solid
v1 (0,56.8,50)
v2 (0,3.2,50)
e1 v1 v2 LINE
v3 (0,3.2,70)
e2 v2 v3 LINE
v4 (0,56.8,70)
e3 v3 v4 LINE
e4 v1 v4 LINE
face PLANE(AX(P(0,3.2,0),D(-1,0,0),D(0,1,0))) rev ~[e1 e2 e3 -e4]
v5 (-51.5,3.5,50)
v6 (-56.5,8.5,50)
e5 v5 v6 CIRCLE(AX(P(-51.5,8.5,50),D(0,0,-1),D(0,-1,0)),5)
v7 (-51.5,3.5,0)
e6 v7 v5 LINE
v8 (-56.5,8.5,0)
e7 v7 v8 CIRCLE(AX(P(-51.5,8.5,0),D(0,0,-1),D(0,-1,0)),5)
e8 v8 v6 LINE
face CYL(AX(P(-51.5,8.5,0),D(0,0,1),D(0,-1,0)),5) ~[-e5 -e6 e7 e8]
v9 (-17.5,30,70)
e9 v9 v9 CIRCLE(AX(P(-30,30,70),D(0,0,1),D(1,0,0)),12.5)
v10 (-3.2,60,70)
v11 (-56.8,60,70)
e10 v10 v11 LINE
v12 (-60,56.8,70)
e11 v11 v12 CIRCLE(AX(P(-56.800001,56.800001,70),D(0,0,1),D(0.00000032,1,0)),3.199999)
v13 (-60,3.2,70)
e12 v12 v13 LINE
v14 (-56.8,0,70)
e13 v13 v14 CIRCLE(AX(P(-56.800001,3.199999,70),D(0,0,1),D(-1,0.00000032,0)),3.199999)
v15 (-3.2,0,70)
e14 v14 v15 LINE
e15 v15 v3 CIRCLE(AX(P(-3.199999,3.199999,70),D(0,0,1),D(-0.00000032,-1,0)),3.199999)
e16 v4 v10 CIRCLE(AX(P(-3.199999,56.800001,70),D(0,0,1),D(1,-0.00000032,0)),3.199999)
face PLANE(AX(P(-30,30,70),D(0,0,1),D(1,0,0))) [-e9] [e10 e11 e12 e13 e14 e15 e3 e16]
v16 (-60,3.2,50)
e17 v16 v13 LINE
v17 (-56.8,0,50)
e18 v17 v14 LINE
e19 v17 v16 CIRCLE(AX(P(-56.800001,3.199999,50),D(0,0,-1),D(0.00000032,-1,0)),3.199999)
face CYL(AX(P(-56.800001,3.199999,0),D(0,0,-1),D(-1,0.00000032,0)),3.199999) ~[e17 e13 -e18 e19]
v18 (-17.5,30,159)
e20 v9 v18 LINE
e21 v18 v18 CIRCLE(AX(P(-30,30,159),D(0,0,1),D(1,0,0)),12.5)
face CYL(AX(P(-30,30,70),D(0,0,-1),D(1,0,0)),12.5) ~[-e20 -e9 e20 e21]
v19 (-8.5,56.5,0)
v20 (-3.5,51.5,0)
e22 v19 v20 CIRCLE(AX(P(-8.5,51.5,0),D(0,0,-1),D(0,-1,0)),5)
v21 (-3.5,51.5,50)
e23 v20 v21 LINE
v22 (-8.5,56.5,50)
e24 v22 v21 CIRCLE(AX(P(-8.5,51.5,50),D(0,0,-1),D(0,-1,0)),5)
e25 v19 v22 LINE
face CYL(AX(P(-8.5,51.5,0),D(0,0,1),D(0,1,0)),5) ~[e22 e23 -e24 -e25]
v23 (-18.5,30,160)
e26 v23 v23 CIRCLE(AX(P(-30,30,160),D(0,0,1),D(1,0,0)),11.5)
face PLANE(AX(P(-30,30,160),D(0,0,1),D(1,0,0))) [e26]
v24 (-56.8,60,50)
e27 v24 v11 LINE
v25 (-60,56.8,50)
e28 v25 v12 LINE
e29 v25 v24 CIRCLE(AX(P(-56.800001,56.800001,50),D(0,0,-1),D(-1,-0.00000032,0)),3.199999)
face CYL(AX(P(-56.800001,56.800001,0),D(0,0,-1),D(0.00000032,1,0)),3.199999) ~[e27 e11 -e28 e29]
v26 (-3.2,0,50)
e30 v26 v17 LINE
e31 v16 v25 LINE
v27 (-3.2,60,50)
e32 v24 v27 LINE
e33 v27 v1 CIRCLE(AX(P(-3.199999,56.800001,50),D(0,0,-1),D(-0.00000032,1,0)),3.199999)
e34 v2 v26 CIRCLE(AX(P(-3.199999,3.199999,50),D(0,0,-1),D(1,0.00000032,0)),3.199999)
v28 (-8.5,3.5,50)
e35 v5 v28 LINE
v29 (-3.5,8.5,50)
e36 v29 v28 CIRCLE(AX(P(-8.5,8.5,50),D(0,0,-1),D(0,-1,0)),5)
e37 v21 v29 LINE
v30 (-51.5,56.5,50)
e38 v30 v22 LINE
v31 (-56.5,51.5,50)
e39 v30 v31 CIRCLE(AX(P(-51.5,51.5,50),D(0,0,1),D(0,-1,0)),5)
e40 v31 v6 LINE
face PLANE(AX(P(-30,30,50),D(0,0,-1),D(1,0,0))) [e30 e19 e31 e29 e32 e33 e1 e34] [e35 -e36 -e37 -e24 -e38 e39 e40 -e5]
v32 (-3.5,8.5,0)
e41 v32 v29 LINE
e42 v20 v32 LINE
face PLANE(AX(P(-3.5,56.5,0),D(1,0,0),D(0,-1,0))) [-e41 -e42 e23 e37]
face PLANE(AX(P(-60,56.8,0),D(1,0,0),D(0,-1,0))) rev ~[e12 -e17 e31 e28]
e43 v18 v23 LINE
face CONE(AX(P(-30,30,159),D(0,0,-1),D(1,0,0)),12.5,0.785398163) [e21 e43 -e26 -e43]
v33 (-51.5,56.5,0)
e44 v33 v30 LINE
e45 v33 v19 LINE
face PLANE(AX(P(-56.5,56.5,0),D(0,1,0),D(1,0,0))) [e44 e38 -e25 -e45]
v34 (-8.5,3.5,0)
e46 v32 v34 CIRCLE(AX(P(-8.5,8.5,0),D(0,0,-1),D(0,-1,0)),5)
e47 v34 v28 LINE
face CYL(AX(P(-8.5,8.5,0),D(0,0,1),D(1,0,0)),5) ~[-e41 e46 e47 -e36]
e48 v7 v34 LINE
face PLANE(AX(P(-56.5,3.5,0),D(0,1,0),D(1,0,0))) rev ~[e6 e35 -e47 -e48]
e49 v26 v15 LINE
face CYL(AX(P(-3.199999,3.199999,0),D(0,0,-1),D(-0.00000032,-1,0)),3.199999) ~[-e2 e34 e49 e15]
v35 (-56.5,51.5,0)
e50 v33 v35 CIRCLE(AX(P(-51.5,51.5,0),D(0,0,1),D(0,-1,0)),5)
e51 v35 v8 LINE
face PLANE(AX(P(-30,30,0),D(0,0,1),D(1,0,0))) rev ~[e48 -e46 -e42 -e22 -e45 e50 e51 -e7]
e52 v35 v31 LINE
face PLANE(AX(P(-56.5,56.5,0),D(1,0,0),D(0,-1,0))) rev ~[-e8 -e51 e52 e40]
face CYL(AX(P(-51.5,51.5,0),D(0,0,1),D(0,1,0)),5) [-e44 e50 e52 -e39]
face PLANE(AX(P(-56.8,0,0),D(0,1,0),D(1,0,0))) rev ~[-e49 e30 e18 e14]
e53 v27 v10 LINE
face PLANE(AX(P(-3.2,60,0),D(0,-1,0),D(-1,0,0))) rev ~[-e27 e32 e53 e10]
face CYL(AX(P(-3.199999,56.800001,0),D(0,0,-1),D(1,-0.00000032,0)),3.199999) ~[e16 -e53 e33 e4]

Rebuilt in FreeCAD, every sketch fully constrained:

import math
import FreeCAD as App
import Part
import Sketcher

V = App.Vector
Q = App.Units.Quantity


def edges_at(feature, points):
    """Names of the edges that pass closest to the given points."""
    edges = feature.Shape.Edges
    near = lambda p: min(range(len(edges)), key=lambda i: edges[i].distToShape(Part.Vertex(*p))[0])
    return sorted({f"Edge{near(p) + 1}" for p in points})

doc = App.newDocument("Part")
params = doc.addObject("Spreadsheet::Sheet", "Params")
for row, (alias, value) in enumerate([
    ("sketch1_radius", "3.199999 mm"),
    ("sketch1_width", "53.6 mm"),
    ("pad1_length", "70 mm"),
    ("sketch2_radius", "3.199999 mm"),
    ("sketch2_width", "53 mm"),
    ("sketch2_width2", "53.6 mm"),
    ("pocket1_length", "50 mm"),
    ("fillet_radius", "5 mm"),
    ("sketch3_diameter", "25 mm"),
    ("pad2_length", "90 mm"),
    ("chamfer_size", "1 mm"),
], start=1):
    params.set(f"A{row}", alias)
    params.set(f"B{row}", "=" + value)
    params.setAlias(f"B{row}", alias)

body = doc.addObject("PartDesign::Body", "Body")

# Sketch on XY plane
sketch1 = body.newObject("Sketcher::SketchObject", "Sketch")
sketch1.AttachmentSupport = (doc.getObject("XY_Plane"), [""])
sketch1.MapMode = "FlatFace"
sketch1.addGeometry([
    Part.ArcOfCircle(Part.Circle(V(-56.8, 3.2, 0), V(0, 0, 1), 3.2), math.radians(180), math.radians(270)),  # 0
    Part.LineSegment(V(-56.8, 0, 0), V(-3.2, 0, 0)),  # 1
    Part.ArcOfCircle(Part.Circle(V(-3.2, 3.2, 0), V(0, 0, 1), 3.2), math.radians(-90), math.radians(0)),  # 2
    Part.LineSegment(V(0, 3.2, 0), V(0, 56.8, 0)),  # 3
    Part.ArcOfCircle(Part.Circle(V(-3.2, 56.8, 0), V(0, 0, 1), 3.2), math.radians(0), math.radians(90)),  # 4
    Part.LineSegment(V(-3.2, 60, 0), V(-56.8, 60, 0)),  # 5
    Part.ArcOfCircle(Part.Circle(V(-56.8, 56.8, 0), V(0, 0, 1), 3.2), math.radians(90), math.radians(180)),  # 6
    Part.LineSegment(V(-60, 56.8, 0), V(-60, 3.2, 0)),  # 7
], False)
sketch1.addConstraint([
    Sketcher.Constraint("Tangent", 0, 2, 1, 1),
    Sketcher.Constraint("Tangent", 1, 2, 2, 1),
    Sketcher.Constraint("Tangent", 2, 2, 3, 1),
    Sketcher.Constraint("Tangent", 3, 2, 4, 1),
    Sketcher.Constraint("Tangent", 4, 2, 5, 1),
    Sketcher.Constraint("Tangent", 5, 2, 6, 1),
    Sketcher.Constraint("Tangent", 6, 2, 7, 1),
    Sketcher.Constraint("Tangent", 7, 2, 0, 1),
    Sketcher.Constraint("Horizontal", 1),
    Sketcher.Constraint("Vertical", 3),
    Sketcher.Constraint("Horizontal", 5),
    Sketcher.Constraint("Vertical", 7),
    Sketcher.Constraint("Equal", 0, 2),
    Sketcher.Constraint("Equal", 2, 4),
    Sketcher.Constraint("Equal", 4, 6),
    Sketcher.Constraint("PointOnObject", 0, 2, -1),
    Sketcher.Constraint("PointOnObject", 2, 2, -2),
    Sketcher.Constraint("Equal", 5, 3),
    Sketcher.Constraint("Radius", 0, Q("3.199999 mm")),
    Sketcher.Constraint("DistanceX", 1, 1, 1, 2, Q("53.6 mm")),
])
sketch1.setExpression("Constraints[18]", "Params.sketch1_radius")
sketch1.setExpression("Constraints[19]", "Params.sketch1_width")
pad1 = body.newObject("PartDesign::Pad", "Pad")
pad1.Profile = sketch1
pad1.setExpression("Length", "Params.pad1_length")

# Sketch on XY plane
sketch2 = body.newObject("Sketcher::SketchObject", "Sketch001")
sketch2.AttachmentSupport = (doc.getObject("XY_Plane"), [""])
sketch2.MapMode = "FlatFace"
sketch2.addGeometry([
    Part.LineSegment(V(-3.2, 0, 0), V(-56.8, 0, 0)),  # 0
    Part.ArcOfCircle(Part.Circle(V(-56.8, 3.2, 0), V(0, 0, 1), 3.2), math.radians(180), math.radians(270)),  # 1
    Part.LineSegment(V(-60, 3.2, 0), V(-60, 56.8, 0)),  # 2
    Part.ArcOfCircle(Part.Circle(V(-56.8, 56.8, 0), V(0, 0, 1), 3.2), math.radians(90), math.radians(180)),  # 3
    Part.LineSegment(V(-56.8, 60, 0), V(-3.2, 60, 0)),  # 4
    Part.ArcOfCircle(Part.Circle(V(-3.2, 56.8, 0), V(0, 0, 1), 3.2), math.radians(0), math.radians(90)),  # 5
    Part.LineSegment(V(0, 56.8, 0), V(0, 3.2, 0)),  # 6
    Part.ArcOfCircle(Part.Circle(V(-3.2, 3.2, 0), V(0, 0, 1), 3.2), math.radians(-90), math.radians(0)),  # 7
    Part.LineSegment(V(-3.5, 56.5, 0), V(-56.5, 56.5, 0)),  # 8
    Part.LineSegment(V(-56.5, 56.5, 0), V(-56.5, 3.5, 0)),  # 9
    Part.LineSegment(V(-56.5, 3.5, 0), V(-3.5, 3.5, 0)),  # 10
    Part.LineSegment(V(-3.5, 3.5, 0), V(-3.5, 56.5, 0)),  # 11
], False)
sketch2.addConstraint([
    Sketcher.Constraint("Tangent", 0, 2, 1, 2),
    Sketcher.Constraint("Tangent", 1, 1, 2, 1),
    Sketcher.Constraint("Tangent", 2, 2, 3, 2),
    Sketcher.Constraint("Tangent", 3, 1, 4, 1),
    Sketcher.Constraint("Tangent", 4, 2, 5, 2),
    Sketcher.Constraint("Tangent", 5, 1, 6, 1),
    Sketcher.Constraint("Tangent", 6, 2, 7, 2),
    Sketcher.Constraint("Tangent", 7, 1, 0, 1),
    Sketcher.Constraint("Coincident", 8, 2, 9, 1),
    Sketcher.Constraint("Coincident", 9, 2, 10, 1),
    Sketcher.Constraint("Coincident", 10, 2, 11, 1),
    Sketcher.Constraint("Coincident", 11, 2, 8, 1),
    Sketcher.Constraint("Horizontal", 0),
    Sketcher.Constraint("Vertical", 2),
    Sketcher.Constraint("Horizontal", 4),
    Sketcher.Constraint("Vertical", 6),
    Sketcher.Constraint("Horizontal", 8),
    Sketcher.Constraint("Vertical", 9),
    Sketcher.Constraint("Horizontal", 10),
    Sketcher.Constraint("Vertical", 11),
    Sketcher.Constraint("Equal", 1, 3),
    Sketcher.Constraint("Equal", 3, 5),
    Sketcher.Constraint("Equal", 5, 7),
    Sketcher.Constraint("PointOnObject", 0, 2, -1),
    Sketcher.Constraint("PointOnObject", 5, 1, -2),
    Sketcher.Constraint("Equal", 4, 2),
    Sketcher.Constraint("Equal", 10, 9),
    Sketcher.Constraint("Radius", 1, Q("3.199999 mm")),
    Sketcher.Constraint("DistanceX", 8, 2, 8, 1, Q("53 mm")),
    Sketcher.Constraint("DistanceX", 0, 2, 0, 1, Q("53.6 mm")),
    Sketcher.Constraint("DistanceX", 8, 2, -1, 1, Q("56.5 mm")),
    Sketcher.Constraint("DistanceY", -1, 1, 8, 2, Q("56.5 mm")),
])
sketch2.setExpression("Constraints[27]", "Params.sketch2_radius")
sketch2.setExpression("Constraints[28]", "Params.sketch2_width")
sketch2.setExpression("Constraints[29]", "Params.sketch2_width2")
pocket1 = body.newObject("PartDesign::Pocket", "Pocket")
pocket1.Profile = sketch2
pocket1.setExpression("Length", "Params.pocket1_length")
pocket1.Reversed = True
doc.recompute()

fillet = body.newObject("PartDesign::Fillet", "Fillet")
fillet.Base = (pocket1, edges_at(pocket1, [
    (-56.5, 3.5, 25),
    (-3.5, 3.5, 25),
    (-3.5, 56.5, 25),
    (-56.5, 56.5, 25),
]))
fillet.setExpression("Radius", "Params.fillet_radius")

# Sketch on XY plane
sketch3 = body.newObject("Sketcher::SketchObject", "Sketch002")
sketch3.AttachmentSupport = (doc.getObject("XY_Plane"), [""])
sketch3.MapMode = "FlatFace"
sketch3.AttachmentOffset = App.Placement(V(0, 0, 70), App.Rotation())
sketch3.addGeometry(Part.Circle(V(-30, 30, 0), V(0, 0, 1), 12), False)
sketch3.addConstraint([
    Sketcher.Constraint("Diameter", 0, Q("25 mm")),
    Sketcher.Constraint("DistanceX", 0, 3, -1, 1, Q("30 mm")),
    Sketcher.Constraint("DistanceY", -1, 1, 0, 3, Q("30 mm")),
])
sketch3.setExpression("Constraints[0]", "Params.sketch3_diameter")
pad2 = body.newObject("PartDesign::Pad", "Pad001")
pad2.Profile = sketch3
pad2.setExpression("Length", "Params.pad2_length")
doc.recompute()

chamfer = body.newObject("PartDesign::Chamfer", "Chamfer")
chamfer.Base = (pad2, edges_at(pad2, [(-42.5, 30, 160)]))
chamfer.setExpression("Size", "Params.chamfer_size")

doc.recompute()
